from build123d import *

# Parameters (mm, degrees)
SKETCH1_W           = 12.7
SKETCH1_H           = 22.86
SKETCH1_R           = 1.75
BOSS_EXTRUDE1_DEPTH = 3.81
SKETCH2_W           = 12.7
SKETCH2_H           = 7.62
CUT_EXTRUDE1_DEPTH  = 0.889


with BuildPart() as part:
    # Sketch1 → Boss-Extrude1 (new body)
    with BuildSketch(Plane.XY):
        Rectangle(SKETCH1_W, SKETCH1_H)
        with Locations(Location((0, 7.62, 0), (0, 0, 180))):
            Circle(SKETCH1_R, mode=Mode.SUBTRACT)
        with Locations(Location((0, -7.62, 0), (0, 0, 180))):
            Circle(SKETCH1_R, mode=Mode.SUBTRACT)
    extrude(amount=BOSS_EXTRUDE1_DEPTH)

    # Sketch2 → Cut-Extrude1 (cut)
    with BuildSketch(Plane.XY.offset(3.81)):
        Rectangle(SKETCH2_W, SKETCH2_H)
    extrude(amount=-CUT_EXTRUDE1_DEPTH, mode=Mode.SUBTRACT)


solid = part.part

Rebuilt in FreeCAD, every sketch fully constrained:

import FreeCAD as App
import Part
import Sketcher
Q = App.Units.Quantity

doc = App.newDocument("Part")
body = doc.addObject("PartDesign::Body", "Body")

sketch1 = body.newObject("Sketcher::SketchObject", "Sketch")
sketch1.AttachmentSupport = (doc.getObject("XY_Plane"), [""])
sketch1.MapMode = "FlatFace"
sketch1.addGeometry([
    Part.LineSegment(App.Vector(-6.35, 11.43, 0), App.Vector(-6.35, -11.43, 0)),
    Part.LineSegment(App.Vector(-6.35, -11.43, 0), App.Vector(6.35, -11.43, 0)),
    Part.LineSegment(App.Vector(6.35, -11.43, 0), App.Vector(6.35, 11.43, 0)),
    Part.LineSegment(App.Vector(6.35, 11.43, 0), App.Vector(-6.35, 11.43, 0)),
    Part.Circle(App.Vector(0, -7.62, 0), App.Vector(0, 0, 1), 1.75),
    Part.Circle(App.Vector(0, 7.62, 0), App.Vector(0, 0, 1), 1.75),
], False)
sketch1.addConstraint([
    Sketcher.Constraint("Coincident", 0, 2, 1, 1),
    Sketcher.Constraint("Coincident", 1, 2, 2, 1),
    Sketcher.Constraint("Coincident", 2, 2, 3, 1),
    Sketcher.Constraint("Coincident", 3, 2, 0, 1),
    Sketcher.Constraint("Vertical", 0),
    Sketcher.Constraint("Horizontal", 1),
    Sketcher.Constraint("Vertical", 2),
    Sketcher.Constraint("Horizontal", 3),
    Sketcher.Constraint("Equal", 4, 5),
    Sketcher.Constraint("Symmetric", 4, 3, 5, 3, -1, 1),
    Sketcher.Constraint("Symmetric", 0, 2, 2, 2, -1, 1),
    Sketcher.Constraint("PointOnObject", 4, 3, -2),
    Sketcher.Constraint("DistanceX", 1, 1, 1, 2, Q("0.5 in")),
    Sketcher.Constraint("DistanceY", 0, 2, 0, 1, Q("0.9 in")),
    Sketcher.Constraint("DistanceY", 4, 3, -1, 1, Q("0.3 in")),
    Sketcher.Constraint("Diameter", 4, Q("3.5 mm")),
])
pad1 = body.newObject("PartDesign::Pad", "Pad")
pad1.Profile = sketch1
pad1.Length = Q("0.15 in")

sketch2 = body.newObject("Sketcher::SketchObject", "Sketch001")
sketch2.AttachmentSupport = (doc.getObject("XY_Plane"), [""])
sketch2.MapMode = "FlatFace"
sketch2.AttachmentOffset = App.Placement(App.Vector(0, 0, 0.15 * 25.4), App.Rotation())
sketch2.addGeometry([
    Part.LineSegment(App.Vector(-6.35, 3.81, 0), App.Vector(-6.35, -3.81, 0)),
    Part.LineSegment(App.Vector(-6.35, -3.81, 0), App.Vector(6.35, -3.81, 0)),
    Part.LineSegment(App.Vector(6.35, -3.81, 0), App.Vector(6.35, 3.81, 0)),
    Part.LineSegment(App.Vector(6.35, 3.81, 0), App.Vector(-6.35, 3.81, 0)),
], False)
sketch2.addConstraint([
    Sketcher.Constraint("Coincident", 0, 2, 1, 1),
    Sketcher.Constraint("Coincident", 1, 2, 2, 1),
    Sketcher.Constraint("Coincident", 2, 2, 3, 1),
    Sketcher.Constraint("Coincident", 3, 2, 0, 1),
    Sketcher.Constraint("Vertical", 0),
    Sketcher.Constraint("Horizontal", 1),
    Sketcher.Constraint("Vertical", 2),
    Sketcher.Constraint("Horizontal", 3),
    Sketcher.Constraint("Symmetric", 0, 2, 2, 2, -1, 1),
    Sketcher.Constraint("DistanceX", 1, 1, 1, 2, Q("0.5 in")),
    Sketcher.Constraint("DistanceY", 0, 2, 0, 1, Q("0.3 in")),
])
pocket1 = body.newObject("PartDesign::Pocket", "Pocket")
pocket1.Profile = sketch2
pocket1.Length = Q("0.035 in")

doc.recompute()
